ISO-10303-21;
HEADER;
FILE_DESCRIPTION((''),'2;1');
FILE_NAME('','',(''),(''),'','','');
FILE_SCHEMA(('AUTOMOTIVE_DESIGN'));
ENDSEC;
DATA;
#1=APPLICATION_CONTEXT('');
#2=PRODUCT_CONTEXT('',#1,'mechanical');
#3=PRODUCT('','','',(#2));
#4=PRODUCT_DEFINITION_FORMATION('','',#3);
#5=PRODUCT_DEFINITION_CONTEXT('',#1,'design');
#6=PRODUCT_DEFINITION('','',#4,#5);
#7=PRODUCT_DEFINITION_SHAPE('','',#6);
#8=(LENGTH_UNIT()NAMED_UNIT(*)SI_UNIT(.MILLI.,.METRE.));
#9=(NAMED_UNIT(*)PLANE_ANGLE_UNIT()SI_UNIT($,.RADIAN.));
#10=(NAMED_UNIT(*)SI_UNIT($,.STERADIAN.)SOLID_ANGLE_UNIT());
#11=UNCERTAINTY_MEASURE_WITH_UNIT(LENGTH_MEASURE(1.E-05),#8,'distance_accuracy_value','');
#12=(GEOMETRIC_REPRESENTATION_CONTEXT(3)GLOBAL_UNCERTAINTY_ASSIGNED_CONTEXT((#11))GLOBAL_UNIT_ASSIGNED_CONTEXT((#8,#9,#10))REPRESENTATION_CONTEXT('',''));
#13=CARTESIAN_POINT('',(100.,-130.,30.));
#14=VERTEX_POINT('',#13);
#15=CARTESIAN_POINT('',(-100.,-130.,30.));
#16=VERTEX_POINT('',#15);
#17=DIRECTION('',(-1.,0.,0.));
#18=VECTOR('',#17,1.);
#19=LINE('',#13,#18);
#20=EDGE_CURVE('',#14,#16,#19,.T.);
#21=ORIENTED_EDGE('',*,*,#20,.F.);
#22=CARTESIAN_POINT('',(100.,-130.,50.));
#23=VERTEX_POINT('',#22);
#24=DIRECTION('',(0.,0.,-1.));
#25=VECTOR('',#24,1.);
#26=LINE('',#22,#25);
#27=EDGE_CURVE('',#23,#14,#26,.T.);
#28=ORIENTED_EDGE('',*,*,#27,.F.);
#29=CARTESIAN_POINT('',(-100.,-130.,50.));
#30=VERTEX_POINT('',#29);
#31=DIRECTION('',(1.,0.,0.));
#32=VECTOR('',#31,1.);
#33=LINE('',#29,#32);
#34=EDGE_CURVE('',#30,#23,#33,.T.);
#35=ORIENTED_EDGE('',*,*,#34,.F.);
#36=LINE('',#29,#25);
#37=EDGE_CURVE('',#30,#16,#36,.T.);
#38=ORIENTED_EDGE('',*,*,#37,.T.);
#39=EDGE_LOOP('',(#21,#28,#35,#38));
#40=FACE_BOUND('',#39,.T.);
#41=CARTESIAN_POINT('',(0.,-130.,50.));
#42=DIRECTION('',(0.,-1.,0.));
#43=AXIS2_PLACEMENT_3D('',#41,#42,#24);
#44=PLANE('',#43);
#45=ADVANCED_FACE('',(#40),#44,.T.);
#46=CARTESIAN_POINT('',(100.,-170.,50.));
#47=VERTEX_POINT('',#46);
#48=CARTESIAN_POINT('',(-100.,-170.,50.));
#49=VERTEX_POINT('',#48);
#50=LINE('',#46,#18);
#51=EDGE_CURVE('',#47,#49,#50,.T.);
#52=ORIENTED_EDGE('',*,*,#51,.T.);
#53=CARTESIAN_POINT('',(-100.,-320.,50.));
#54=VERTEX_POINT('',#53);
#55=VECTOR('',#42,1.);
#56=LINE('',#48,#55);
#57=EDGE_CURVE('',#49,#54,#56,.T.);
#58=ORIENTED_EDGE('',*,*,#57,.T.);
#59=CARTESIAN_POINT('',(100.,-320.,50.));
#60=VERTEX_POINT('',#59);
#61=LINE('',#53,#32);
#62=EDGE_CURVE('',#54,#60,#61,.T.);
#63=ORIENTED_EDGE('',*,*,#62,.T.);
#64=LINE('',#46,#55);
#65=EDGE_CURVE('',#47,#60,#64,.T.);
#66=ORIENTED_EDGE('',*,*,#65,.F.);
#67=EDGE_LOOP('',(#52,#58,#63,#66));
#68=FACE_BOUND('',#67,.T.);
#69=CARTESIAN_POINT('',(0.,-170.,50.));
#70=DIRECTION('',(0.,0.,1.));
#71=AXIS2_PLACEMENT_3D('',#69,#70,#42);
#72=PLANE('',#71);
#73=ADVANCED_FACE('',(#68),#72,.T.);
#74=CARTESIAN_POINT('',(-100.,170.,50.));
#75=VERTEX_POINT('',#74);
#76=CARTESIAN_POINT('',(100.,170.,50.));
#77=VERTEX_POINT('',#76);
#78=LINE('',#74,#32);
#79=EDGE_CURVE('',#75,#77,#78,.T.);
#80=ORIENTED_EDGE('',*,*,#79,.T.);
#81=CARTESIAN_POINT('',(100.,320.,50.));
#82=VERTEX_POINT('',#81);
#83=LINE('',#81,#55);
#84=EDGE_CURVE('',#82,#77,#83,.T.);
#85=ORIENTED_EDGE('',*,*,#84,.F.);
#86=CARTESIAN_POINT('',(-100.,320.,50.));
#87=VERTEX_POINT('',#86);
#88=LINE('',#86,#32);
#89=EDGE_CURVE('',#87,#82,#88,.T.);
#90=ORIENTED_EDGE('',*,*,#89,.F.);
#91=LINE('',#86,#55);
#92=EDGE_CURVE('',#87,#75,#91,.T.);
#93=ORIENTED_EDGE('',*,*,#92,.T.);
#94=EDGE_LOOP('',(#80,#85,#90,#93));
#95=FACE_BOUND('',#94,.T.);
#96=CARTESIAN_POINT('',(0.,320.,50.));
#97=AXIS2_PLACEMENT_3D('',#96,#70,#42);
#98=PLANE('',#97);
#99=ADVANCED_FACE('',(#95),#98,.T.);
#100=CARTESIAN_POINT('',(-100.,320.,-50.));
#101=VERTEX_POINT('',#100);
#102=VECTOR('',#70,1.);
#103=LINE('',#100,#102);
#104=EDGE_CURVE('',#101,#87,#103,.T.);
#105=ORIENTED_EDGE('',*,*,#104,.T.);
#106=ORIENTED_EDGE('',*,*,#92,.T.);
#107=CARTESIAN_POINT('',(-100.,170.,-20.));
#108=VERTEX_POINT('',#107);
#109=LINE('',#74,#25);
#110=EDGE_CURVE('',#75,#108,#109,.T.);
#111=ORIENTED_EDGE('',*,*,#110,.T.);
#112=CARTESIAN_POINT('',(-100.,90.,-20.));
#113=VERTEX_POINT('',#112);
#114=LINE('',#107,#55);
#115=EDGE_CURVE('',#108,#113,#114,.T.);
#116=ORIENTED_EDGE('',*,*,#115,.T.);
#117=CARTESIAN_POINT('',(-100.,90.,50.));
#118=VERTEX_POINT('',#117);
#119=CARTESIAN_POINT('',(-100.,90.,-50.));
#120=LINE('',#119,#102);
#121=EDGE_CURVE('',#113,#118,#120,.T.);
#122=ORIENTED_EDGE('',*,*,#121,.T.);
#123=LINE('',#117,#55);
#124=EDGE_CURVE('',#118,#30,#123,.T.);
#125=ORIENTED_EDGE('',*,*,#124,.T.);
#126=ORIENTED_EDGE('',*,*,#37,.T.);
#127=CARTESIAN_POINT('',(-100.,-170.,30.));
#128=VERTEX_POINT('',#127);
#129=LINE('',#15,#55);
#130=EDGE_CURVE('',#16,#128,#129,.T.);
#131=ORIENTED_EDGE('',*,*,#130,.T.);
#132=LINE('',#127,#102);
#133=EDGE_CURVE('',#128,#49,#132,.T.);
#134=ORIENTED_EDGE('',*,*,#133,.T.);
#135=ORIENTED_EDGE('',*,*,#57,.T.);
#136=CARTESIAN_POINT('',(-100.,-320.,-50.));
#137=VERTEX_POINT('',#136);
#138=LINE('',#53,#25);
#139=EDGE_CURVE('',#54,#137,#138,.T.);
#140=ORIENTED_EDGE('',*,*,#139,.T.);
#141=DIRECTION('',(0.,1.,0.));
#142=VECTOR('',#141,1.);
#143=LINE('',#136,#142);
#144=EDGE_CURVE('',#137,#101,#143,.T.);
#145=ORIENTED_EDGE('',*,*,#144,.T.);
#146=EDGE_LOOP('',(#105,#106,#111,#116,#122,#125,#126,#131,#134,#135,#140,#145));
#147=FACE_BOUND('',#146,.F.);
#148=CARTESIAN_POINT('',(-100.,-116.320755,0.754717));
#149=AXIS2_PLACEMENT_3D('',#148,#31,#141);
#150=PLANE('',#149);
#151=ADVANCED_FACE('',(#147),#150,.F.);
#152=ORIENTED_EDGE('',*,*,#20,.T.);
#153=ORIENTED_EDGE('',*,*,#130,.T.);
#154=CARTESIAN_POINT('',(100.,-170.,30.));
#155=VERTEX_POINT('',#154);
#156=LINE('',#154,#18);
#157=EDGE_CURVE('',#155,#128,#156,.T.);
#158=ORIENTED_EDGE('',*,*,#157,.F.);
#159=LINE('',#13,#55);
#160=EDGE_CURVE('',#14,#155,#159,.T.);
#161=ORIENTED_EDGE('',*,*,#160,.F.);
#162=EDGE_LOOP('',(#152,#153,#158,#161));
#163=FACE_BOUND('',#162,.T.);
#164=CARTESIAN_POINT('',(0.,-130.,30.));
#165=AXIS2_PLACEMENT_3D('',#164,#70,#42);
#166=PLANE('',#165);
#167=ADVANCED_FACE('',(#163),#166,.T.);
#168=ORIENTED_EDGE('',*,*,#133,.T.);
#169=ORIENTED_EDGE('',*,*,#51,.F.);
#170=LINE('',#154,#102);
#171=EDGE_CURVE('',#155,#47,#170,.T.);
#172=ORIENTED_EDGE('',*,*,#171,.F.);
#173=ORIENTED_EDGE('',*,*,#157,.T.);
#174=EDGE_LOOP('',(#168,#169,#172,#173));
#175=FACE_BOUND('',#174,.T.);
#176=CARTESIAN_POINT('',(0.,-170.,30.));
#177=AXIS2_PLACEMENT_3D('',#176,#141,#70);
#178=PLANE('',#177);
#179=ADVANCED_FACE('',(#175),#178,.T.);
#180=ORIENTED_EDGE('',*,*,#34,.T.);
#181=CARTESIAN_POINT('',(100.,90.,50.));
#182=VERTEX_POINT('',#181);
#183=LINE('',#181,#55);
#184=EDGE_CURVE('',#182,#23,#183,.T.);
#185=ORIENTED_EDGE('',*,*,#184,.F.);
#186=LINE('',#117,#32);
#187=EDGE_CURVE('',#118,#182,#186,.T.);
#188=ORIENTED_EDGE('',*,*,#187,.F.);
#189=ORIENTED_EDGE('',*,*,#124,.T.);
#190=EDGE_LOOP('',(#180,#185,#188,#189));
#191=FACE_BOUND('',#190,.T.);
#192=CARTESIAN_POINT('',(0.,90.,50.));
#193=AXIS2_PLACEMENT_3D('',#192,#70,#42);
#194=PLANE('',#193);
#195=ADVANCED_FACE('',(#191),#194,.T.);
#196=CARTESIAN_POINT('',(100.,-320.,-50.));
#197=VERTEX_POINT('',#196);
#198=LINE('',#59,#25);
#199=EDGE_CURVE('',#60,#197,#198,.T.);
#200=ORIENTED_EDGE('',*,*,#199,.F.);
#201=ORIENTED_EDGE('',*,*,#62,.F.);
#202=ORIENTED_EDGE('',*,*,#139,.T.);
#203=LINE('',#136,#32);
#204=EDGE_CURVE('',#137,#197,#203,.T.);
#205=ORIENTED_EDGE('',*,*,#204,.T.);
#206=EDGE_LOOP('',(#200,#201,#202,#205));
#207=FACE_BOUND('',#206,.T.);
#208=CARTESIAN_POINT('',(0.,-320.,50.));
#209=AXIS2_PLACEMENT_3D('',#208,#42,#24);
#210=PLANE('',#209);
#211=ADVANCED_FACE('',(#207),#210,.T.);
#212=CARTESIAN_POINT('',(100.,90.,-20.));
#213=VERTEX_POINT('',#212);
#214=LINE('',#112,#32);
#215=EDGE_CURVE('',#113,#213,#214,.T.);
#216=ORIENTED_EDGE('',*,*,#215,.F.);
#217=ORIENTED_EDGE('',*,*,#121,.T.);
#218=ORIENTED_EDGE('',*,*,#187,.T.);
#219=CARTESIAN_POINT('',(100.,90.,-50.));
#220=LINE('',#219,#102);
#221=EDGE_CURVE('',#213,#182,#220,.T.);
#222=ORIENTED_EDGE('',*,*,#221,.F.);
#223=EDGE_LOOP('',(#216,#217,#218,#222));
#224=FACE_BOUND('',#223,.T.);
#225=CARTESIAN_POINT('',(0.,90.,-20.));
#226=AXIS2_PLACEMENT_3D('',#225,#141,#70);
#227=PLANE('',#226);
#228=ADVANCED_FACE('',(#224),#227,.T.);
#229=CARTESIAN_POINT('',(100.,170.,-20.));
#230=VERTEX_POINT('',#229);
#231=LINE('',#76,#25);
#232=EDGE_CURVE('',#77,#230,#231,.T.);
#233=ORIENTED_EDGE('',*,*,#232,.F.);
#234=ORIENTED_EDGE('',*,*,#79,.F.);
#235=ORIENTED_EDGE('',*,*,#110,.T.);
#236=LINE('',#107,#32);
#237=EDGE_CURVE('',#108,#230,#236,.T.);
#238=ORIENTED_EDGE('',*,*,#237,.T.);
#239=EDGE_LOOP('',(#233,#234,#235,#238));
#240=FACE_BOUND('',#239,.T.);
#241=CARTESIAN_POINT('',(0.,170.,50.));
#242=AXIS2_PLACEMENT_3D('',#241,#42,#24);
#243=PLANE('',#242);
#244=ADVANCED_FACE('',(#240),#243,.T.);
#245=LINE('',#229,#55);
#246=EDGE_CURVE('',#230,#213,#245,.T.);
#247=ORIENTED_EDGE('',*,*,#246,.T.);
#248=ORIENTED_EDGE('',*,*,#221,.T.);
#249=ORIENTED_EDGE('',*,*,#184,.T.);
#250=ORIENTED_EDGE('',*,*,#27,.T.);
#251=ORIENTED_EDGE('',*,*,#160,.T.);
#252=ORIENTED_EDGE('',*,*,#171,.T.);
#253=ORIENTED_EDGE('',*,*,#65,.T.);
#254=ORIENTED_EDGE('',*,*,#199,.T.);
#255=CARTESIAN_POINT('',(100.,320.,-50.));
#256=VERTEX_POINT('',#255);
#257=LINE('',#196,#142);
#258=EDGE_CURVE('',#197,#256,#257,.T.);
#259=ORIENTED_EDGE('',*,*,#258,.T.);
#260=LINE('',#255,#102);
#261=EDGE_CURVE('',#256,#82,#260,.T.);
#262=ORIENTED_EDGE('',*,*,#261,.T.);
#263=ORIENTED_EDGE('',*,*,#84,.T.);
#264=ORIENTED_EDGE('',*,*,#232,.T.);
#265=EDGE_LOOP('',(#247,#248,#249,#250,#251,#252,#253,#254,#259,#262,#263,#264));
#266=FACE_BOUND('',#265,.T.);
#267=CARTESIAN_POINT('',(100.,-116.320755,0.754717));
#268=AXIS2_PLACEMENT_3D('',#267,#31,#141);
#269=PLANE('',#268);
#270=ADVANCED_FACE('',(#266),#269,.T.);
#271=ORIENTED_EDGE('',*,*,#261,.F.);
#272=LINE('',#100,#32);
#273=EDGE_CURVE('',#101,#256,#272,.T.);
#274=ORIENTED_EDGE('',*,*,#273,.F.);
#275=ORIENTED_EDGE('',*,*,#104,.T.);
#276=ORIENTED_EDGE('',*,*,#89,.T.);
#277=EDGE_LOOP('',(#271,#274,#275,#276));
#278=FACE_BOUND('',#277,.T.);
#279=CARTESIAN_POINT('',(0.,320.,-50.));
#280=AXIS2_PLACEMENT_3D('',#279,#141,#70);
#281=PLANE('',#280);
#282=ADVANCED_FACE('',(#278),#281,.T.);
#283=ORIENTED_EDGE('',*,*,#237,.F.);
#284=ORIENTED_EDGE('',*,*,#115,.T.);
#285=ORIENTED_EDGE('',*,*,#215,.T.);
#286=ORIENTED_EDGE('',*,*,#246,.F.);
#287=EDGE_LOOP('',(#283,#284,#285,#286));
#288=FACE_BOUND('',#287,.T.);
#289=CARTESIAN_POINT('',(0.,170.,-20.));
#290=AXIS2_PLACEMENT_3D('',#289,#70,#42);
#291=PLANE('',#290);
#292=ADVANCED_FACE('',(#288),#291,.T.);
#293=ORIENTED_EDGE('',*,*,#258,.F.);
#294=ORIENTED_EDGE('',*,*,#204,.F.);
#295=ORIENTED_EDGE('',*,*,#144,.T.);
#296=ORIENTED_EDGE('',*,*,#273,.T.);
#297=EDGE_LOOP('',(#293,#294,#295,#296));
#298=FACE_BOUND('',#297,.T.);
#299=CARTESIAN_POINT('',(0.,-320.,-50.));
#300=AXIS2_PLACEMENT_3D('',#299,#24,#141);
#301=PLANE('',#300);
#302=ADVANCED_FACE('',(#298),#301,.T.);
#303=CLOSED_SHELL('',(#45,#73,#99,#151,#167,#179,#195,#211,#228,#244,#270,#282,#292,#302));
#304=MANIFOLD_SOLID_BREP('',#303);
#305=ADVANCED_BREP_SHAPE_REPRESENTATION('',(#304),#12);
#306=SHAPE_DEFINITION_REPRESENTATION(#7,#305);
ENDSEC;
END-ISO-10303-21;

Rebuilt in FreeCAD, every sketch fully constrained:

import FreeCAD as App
import Part
import Sketcher

V = App.Vector


def add_polygon(sketch, points):
    """Adds a closed chain of lines whose ends are joined by coincident constraints."""
    first, n = sketch.GeometryCount, len(points)
    for a, b in zip(points, points[1:] + points[:1]):
        sketch.addGeometry(Part.LineSegment(App.Vector(*a, 0), App.Vector(*b, 0)), False)
    for i in range(n):
        sketch.addConstraint(Sketcher.Constraint("Coincident", first + i, 2, first + (i + 1) % n, 1))

doc = App.newDocument("Part")
body = doc.addObject("PartDesign::Body", "Body")

# Sketch on YZ plane
sketch1 = doc.addObject("Sketcher::SketchObject", "Sketch")
body.addObject(sketch1)
sketch1.AttachmentSupport = (doc.YZ_Plane, [""])
sketch1.MapMode = "FlatFace"
add_polygon(sketch1, [(-170, 50), (-320, 50), (-320, -50), (320, -50), (320, 50), (170, 50), (170, -20), (90, -20), (90, 50), (-130, 50), (-130, 30), (-170, 30)])  # lines 0-11
sketch1.addConstraint(Sketcher.Constraint("Horizontal", 0))
sketch1.addConstraint(Sketcher.Constraint("Vertical", 1))
sketch1.addConstraint(Sketcher.Constraint("Horizontal", 2))
sketch1.addConstraint(Sketcher.Constraint("Vertical", 3))
sketch1.addConstraint(Sketcher.Constraint("Horizontal", 4))
sketch1.addConstraint(Sketcher.Constraint("Vertical", 5))
sketch1.addConstraint(Sketcher.Constraint("Horizontal", 6))
sketch1.addConstraint(Sketcher.Constraint("Vertical", 7))
sketch1.addConstraint(Sketcher.Constraint("Horizontal", 8))
sketch1.addConstraint(Sketcher.Constraint("Vertical", 9))
sketch1.addConstraint(Sketcher.Constraint("Horizontal", 10))
sketch1.addConstraint(Sketcher.Constraint("Vertical", 11))
sketch1.addConstraint(Sketcher.Constraint("Symmetric", 0, 2, 2, 2, -1, 1))
sketch1.addConstraint(Sketcher.Constraint("Symmetric", 4, 2, 11, 2, -2))
sketch1.addConstraint(Sketcher.Constraint("Horizontal", 4, 2, 7, 2))
sketch1.addConstraint(Sketcher.Constraint("DistanceX", 0, 2, 0, 1, 150.0))
sketch1.addConstraint(Sketcher.Constraint("DistanceX", 2, 1, 2, 2, 640.0))
sketch1.addConstraint(Sketcher.Constraint("DistanceX", 6, 2, 6, 1, 80.0))
sketch1.addConstraint(Sketcher.Constraint("DistanceX", 8, 2, 8, 1, 220.0))
sketch1.addConstraint(Sketcher.Constraint("DistanceY", 1, 2, 1, 1, 100.0))
sketch1.addConstraint(Sketcher.Constraint("DistanceY", 5, 2, 5, 1, 70.0))
sketch1.addConstraint(Sketcher.Constraint("DistanceY", 9, 2, 9, 1, 20.0))
pad1 = doc.addObject("PartDesign::Pad", "Pad")
body.addObject(pad1)
pad1.Profile = sketch1
pad1.Length = 200
pad1.Midplane = True

doc.recompute()
